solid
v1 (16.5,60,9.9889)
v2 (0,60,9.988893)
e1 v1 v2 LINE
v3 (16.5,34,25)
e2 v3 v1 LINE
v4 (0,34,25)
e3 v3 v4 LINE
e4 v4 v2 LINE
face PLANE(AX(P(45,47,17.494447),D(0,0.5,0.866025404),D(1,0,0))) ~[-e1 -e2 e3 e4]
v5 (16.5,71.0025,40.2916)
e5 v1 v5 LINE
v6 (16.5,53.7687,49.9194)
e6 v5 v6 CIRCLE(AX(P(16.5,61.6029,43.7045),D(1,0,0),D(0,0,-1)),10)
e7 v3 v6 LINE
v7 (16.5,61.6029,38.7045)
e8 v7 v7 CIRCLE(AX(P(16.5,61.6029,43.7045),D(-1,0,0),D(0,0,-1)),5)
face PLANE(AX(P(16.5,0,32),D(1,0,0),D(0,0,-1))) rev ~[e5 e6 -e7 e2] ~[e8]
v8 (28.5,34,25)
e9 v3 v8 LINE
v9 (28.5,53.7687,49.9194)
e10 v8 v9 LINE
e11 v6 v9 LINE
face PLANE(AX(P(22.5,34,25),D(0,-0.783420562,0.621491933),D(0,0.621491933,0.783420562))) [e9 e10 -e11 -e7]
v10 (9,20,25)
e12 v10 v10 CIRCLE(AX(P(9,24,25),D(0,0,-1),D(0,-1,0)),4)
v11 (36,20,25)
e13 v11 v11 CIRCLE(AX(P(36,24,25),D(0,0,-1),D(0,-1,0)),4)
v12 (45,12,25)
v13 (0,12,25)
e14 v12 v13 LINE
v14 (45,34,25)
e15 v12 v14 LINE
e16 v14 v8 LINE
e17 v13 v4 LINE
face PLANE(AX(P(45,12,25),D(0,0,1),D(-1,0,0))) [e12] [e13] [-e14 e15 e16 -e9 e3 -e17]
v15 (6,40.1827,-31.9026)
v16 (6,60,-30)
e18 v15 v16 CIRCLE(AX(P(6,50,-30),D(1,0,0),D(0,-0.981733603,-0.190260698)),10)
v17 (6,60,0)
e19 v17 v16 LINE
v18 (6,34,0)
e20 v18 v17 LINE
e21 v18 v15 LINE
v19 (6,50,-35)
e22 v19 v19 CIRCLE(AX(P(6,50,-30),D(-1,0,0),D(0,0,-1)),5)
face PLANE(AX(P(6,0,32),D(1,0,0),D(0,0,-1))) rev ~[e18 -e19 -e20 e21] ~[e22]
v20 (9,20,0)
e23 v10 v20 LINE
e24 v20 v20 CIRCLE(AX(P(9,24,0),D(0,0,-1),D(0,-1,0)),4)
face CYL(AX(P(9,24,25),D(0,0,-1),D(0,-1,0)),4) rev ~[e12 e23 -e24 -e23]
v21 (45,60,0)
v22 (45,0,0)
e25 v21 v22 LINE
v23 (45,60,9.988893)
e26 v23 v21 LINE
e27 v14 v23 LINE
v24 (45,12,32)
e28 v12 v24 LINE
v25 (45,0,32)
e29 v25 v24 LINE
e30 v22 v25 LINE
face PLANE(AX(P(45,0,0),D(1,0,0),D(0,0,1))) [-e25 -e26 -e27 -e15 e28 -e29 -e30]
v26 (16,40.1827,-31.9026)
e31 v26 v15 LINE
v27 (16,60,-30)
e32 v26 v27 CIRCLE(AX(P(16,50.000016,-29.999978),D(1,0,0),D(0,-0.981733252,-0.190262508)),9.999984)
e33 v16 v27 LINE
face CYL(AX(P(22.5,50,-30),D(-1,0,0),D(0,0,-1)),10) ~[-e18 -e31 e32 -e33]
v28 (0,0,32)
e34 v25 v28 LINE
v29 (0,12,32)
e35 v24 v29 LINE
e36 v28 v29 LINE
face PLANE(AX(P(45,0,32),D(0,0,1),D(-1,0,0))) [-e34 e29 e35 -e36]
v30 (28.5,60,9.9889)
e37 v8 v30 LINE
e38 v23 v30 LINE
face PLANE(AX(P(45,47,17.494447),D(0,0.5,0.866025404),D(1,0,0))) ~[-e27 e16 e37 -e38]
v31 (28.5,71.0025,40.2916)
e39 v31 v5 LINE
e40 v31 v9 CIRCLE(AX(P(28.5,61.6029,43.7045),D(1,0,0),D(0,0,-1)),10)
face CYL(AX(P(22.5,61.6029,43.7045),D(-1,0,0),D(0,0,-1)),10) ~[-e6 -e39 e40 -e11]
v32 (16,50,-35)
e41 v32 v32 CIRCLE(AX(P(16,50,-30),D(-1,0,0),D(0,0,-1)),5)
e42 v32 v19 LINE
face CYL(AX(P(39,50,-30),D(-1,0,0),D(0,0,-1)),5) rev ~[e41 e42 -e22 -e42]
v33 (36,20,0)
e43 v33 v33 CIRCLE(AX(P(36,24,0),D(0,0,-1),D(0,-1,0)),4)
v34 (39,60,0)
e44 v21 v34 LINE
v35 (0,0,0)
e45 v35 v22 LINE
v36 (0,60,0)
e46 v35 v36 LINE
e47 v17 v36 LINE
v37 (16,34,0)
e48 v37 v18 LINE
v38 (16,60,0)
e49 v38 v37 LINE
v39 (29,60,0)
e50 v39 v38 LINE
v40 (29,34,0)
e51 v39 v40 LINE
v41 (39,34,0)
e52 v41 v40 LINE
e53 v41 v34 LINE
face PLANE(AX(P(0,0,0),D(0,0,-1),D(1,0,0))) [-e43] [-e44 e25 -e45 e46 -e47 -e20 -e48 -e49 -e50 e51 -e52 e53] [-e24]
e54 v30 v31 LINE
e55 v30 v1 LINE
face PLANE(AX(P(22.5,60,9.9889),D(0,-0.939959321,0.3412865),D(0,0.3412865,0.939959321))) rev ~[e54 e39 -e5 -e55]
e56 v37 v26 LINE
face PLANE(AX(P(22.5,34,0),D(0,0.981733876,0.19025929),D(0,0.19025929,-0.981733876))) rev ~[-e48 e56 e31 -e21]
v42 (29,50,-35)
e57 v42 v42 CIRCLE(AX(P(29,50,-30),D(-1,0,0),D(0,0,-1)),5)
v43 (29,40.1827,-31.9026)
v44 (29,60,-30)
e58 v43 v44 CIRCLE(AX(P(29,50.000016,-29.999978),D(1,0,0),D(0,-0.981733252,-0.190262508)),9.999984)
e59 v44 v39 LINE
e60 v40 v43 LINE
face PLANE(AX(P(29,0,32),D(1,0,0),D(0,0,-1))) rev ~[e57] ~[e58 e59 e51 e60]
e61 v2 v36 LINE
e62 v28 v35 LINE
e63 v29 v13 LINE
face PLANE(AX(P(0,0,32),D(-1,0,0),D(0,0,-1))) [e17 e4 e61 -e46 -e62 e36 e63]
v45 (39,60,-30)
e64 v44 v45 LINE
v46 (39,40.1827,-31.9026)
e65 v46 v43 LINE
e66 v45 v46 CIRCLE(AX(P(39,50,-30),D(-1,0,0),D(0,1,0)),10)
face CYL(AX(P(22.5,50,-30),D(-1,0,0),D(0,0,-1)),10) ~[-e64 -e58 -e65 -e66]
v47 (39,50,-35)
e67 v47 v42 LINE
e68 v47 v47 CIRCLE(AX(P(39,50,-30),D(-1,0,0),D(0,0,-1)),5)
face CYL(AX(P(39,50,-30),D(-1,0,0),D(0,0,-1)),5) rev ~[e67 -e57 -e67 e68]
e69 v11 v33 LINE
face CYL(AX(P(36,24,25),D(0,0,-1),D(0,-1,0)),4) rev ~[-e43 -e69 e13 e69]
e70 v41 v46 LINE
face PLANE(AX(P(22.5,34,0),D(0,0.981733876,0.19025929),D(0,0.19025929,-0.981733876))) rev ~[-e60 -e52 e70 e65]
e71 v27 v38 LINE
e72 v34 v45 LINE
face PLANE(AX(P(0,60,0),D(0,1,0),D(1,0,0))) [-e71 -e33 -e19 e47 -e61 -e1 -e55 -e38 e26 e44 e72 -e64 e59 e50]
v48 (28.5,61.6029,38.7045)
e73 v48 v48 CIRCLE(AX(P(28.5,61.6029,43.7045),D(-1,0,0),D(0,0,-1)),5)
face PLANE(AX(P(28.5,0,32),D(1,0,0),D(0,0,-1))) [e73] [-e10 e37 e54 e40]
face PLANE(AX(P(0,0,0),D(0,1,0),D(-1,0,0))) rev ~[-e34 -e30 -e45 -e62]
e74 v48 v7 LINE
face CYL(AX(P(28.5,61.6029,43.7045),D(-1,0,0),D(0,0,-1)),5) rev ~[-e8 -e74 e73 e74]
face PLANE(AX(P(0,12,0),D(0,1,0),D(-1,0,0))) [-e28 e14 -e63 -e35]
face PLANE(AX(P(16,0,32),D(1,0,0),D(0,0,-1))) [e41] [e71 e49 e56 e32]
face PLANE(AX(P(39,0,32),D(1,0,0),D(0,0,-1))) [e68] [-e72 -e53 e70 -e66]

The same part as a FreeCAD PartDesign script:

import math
import FreeCAD as App
import Part
import Sketcher
from FreeCAD import Vector
Q = App.Units.Quantity


def edges_at(feature, points):
    """Names of the edges that pass closest to the given points."""
    edges = feature.Shape.Edges
    near = lambda p: min(range(len(edges)), key=lambda i: edges[i].distToShape(Part.Vertex(*p))[0])
    return sorted({f"Edge{near(p) + 1}" for p in points})

doc = App.newDocument("Part")
body = doc.addObject("PartDesign::Body", "Body")

# Sketch on XZ plane
sketch1 = doc.addObject("Sketcher::SketchObject", "Sketch")
body.addObject(sketch1)
sketch1.AttachmentSupport = (doc.XZ_Plane, [""])
sketch1.MapMode = "FlatFace"
sketch1.addGeometry([
    Part.LineSegment(Vector(45, 0, 0), Vector(0, 0, 0)),
    Part.LineSegment(Vector(0, 0, 0), Vector(0, 32, 0)),
    Part.LineSegment(Vector(0, 32, 0), Vector(45, 32, 0)),
    Part.LineSegment(Vector(45, 32, 0), Vector(45, 0, 0)),
], False)
sketch1.addConstraint([
    Sketcher.Constraint("Coincident", 0, 2, 1, 1),
    Sketcher.Constraint("Coincident", 1, 2, 2, 1),
    Sketcher.Constraint("Coincident", 2, 2, 3, 1),
    Sketcher.Constraint("Coincident", 3, 2, 0, 1),
    Sketcher.Constraint("Horizontal", 0),
    Sketcher.Constraint("Vertical", 1),
    Sketcher.Constraint("Horizontal", 2),
    Sketcher.Constraint("Vertical", 3),
    Sketcher.Constraint("Coincident", 0, 2, -1, 1),
    Sketcher.Constraint("DistanceX", 0, 2, 0, 1, Q("45 mm")),
    Sketcher.Constraint("DistanceY", 1, 1, 1, 2, Q("32 mm")),
])
pad1 = doc.addObject("PartDesign::Pad", "Pad")
body.addObject(pad1)
pad1.Profile = sketch1
pad1.Length = 12
pad1.Reversed = True

# Sketch on XZ plane
sketch2 = doc.addObject("Sketcher::SketchObject", "Sketch001")
body.addObject(sketch2)
sketch2.AttachmentSupport = (doc.XZ_Plane, [""])
sketch2.MapMode = "FlatFace"
sketch2.AttachmentOffset = App.Placement(Vector(0, 0, -12), App.Rotation())
sketch2.addGeometry([
    Part.LineSegment(Vector(45, 25, 0), Vector(45, 0, 0)),
    Part.LineSegment(Vector(45, 0, 0), Vector(0, 0, 0)),
    Part.LineSegment(Vector(0, 0, 0), Vector(0, 25, 0)),
    Part.LineSegment(Vector(0, 25, 0), Vector(45, 25, 0)),
], False)
sketch2.addConstraint([
    Sketcher.Constraint("Coincident", 0, 2, 1, 1),
    Sketcher.Constraint("Coincident", 1, 2, 2, 1),
    Sketcher.Constraint("Coincident", 2, 2, 3, 1),
    Sketcher.Constraint("Coincident", 3, 2, 0, 1),
    Sketcher.Constraint("Vertical", 0),
    Sketcher.Constraint("Horizontal", 1),
    Sketcher.Constraint("Vertical", 2),
    Sketcher.Constraint("Horizontal", 3),
    Sketcher.Constraint("Coincident", 1, 2, -1, 1),
    Sketcher.Constraint("DistanceX", 1, 2, 1, 1, Q("45 mm")),
    Sketcher.Constraint("DistanceY", 0, 2, 0, 1, Q("25 mm")),
])
pad2 = doc.addObject("PartDesign::Pad", "Pad001")
body.addObject(pad2)
pad2.Profile = sketch2
pad2.Length = 48
pad2.Reversed = True

# Sketch on XY plane
sketch3 = doc.addObject("Sketcher::SketchObject", "Sketch002")
body.addObject(sketch3)
sketch3.AttachmentSupport = (doc.XY_Plane, [""])
sketch3.MapMode = "FlatFace"
sketch3.AttachmentOffset = App.Placement(Vector(0, 0, 25), App.Rotation())
sketch3.addGeometry([
    Part.Circle(Vector(9, 24, 0), Vector(0, 0, 1), 4),
    Part.Circle(Vector(36, 24, 0), Vector(0, 0, 1), 4),
], False)
sketch3.addConstraint([
    Sketcher.Constraint("Equal", 0, 1),
    Sketcher.Constraint("Horizontal", 0, 3, 1, 3),
    Sketcher.Constraint("Diameter", 0, Q("8 mm")),
    Sketcher.Constraint("DistanceX", -1, 1, 0, 3, Q("9 mm")),
    Sketcher.Constraint("DistanceY", -1, 1, 0, 3, Q("24 mm")),
    Sketcher.Constraint("DistanceX", -1, 1, 1, 3, Q("36 mm")),
])
doc.recompute()
hole = doc.addObject("PartDesign::Hole", "Hole")
body.addObject(hole)
hole.Profile = sketch3
hole.ThreadType = "None"
hole.Diameter = 8
hole.DepthType = "ThroughAll"
doc.recompute()

chamfer = doc.addObject("PartDesign::Chamfer", "Chamfer")
body.addObject(chamfer)
chamfer.Base = (hole, edges_at(hole, [(22.5, 60, 25)]))
chamfer.ChamferType = "Distance and Angle"
chamfer.Size = 26
chamfer.Angle = 30
chamfer.FlipDirection = True

# Sketch on YZ plane
sketch4 = doc.addObject("Sketcher::SketchObject", "Sketch003")
body.addObject(sketch4)
sketch4.AttachmentSupport = (doc.YZ_Plane, [""])
sketch4.MapMode = "FlatFace"
sketch4.AttachmentOffset = App.Placement(Vector(0, 0, 22.5), App.Rotation())
sketch4.addGeometry([
    Part.ArcOfCircle(Part.Circle(Vector(62, 44, 0), Vector(0, 0, 1), 10), math.radians(-20), math.radians(142)),
    Part.LineSegment(Vector(54, 50, 0), Vector(34, 25, 0)),
    Part.LineSegment(Vector(34, 25, 0), Vector(60, 10, 0)),
    Part.LineSegment(Vector(60, 10, 0), Vector(71, 40, 0)),
], False)
sketch4.addConstraint([
    Sketcher.Constraint("Tangent", 0, 2, 1, 1),
    Sketcher.Constraint("Coincident", 1, 2, 2, 1),
    Sketcher.Constraint("Coincident", 2, 2, 3, 1),
    Sketcher.Constraint("Tangent", 3, 2, 0, 1),
    Sketcher.Constraint("Radius", 0, Q("10 mm")),
    Sketcher.Constraint("Angle", 2, Q("-30 deg")),
    Sketcher.Constraint("DistanceX", -1, 1, 1, 2, Q("34 mm")),
    Sketcher.Constraint("DistanceY", -1, 1, 1, 2, Q("25 mm")),
    Sketcher.Constraint("DistanceX", -1, 1, 2, 2, Q("60 mm")),
    Sketcher.Constraint("DistanceX", -1, 1, 0, 3, Q("61.603 mm")),
    Sketcher.Constraint("DistanceY", 0, 3, 0, 2, Q("6.215 mm")),
])
pad3 = doc.addObject("PartDesign::Pad", "Pad002")
body.addObject(pad3)
pad3.Profile = sketch4
pad3.Length = 12
pad3.Midplane = True

# Sketch on YZ plane
sketch5 = doc.addObject("Sketcher::SketchObject", "Sketch004")
body.addObject(sketch5)
sketch5.AttachmentSupport = (doc.YZ_Plane, [""])
sketch5.MapMode = "FlatFace"
sketch5.AttachmentOffset = App.Placement(Vector(0, 0, 28.5), App.Rotation())
sketch5.addGeometry(Part.Circle(Vector(62, 44, 0), Vector(0, 0, 1), 5), False)
sketch5.addConstraint([
    Sketcher.Constraint("Diameter", 0, Q("10 mm")),
    Sketcher.Constraint("DistanceX", -1, 1, 0, 3, Q("61.603 mm")),
    Sketcher.Constraint("DistanceY", -1, 1, 0, 3, Q("43.7045 mm")),
])
doc.recompute()
hole2 = doc.addObject("PartDesign::Hole", "Hole001")
body.addObject(hole2)
hole2.Profile = sketch5
hole2.ThreadType = "None"
hole2.Diameter = 10
hole2.DepthType = "ThroughAll"

# Sketch on YZ plane
sketch6 = doc.addObject("Sketcher::SketchObject", "Sketch005")
body.addObject(sketch6)
sketch6.AttachmentSupport = (doc.YZ_Plane, [""])
sketch6.MapMode = "FlatFace"
sketch6.AttachmentOffset = App.Placement(Vector(0, 0, 22.5), App.Rotation())
sketch6.addGeometry([
    Part.ArcOfCircle(Part.Circle(Vector(50, -30, 0), Vector(0, 0, 1), 10), math.radians(-169), math.radians(0)),
    Part.LineSegment(Vector(60, -30, 0), Vector(60, 0, 0)),
    Part.LineSegment(Vector(60, 0, 0), Vector(34, 0, 0)),
    Part.LineSegment(Vector(34, 0, 0), Vector(40, -32, 0)),
], False)
sketch6.addConstraint([
    Sketcher.Constraint("Tangent", 0, 2, 1, 1),
    Sketcher.Constraint("Coincident", 1, 2, 2, 1),
    Sketcher.Constraint("Coincident", 2, 2, 3, 1),
    Sketcher.Constraint("Tangent", 3, 2, 0, 1),
    Sketcher.Constraint("Vertical", 1),
    Sketcher.Constraint("Horizontal", 2),
    Sketcher.Constraint("PointOnObject", 1, 2, -1),
    Sketcher.Constraint("Radius", 0, Q("10 mm")),
    Sketcher.Constraint("DistanceX", 2, 2, 2, 1, Q("26 mm")),
    Sketcher.Constraint("DistanceY", 1, 1, 1, 2, Q("30 mm")),
    Sketcher.Constraint("DistanceX", -1, 1, 0, 3, Q("50 mm")),
])
pad4 = doc.addObject("PartDesign::Pad", "Pad003")
body.addObject(pad4)
pad4.Profile = sketch6
pad4.Length = 33
pad4.Midplane = True

# Sketch on YZ plane
sketch7 = doc.addObject("Sketcher::SketchObject", "Sketch006")
body.addObject(sketch7)
sketch7.AttachmentSupport = (doc.YZ_Plane, [""])
sketch7.MapMode = "FlatFace"
sketch7.AttachmentOffset = App.Placement(Vector(0, 0, 22.5), App.Rotation())
sketch7.addGeometry([
    Part.LineSegment(Vector(34, 0, 0), Vector(40, -32, 0)),
    Part.ArcOfCircle(Part.Circle(Vector(50, -30, 0), Vector(0, 0, 1), 10), math.radians(-169), math.radians(0)),
    Part.LineSegment(Vector(60, -30, 0), Vector(60, 0, 0)),
    Part.LineSegment(Vector(60, 0, 0), Vector(34, 0, 0)),
], False)
sketch7.addConstraint([
    Sketcher.Constraint("Tangent", 0, 2, 1, 1),
    Sketcher.Constraint("Tangent", 1, 2, 2, 1),
    Sketcher.Constraint("Coincident", 2, 2, 3, 1),
    Sketcher.Constraint("Coincident", 3, 2, 0, 1),
    Sketcher.Constraint("Vertical", 2),
    Sketcher.Constraint("Horizontal", 3),
    Sketcher.Constraint("PointOnObject", 2, 2, -1),
    Sketcher.Constraint("Radius", 1, Q("10 mm")),
    Sketcher.Constraint("DistanceX", 3, 2, 3, 1, Q("26 mm")),
    Sketcher.Constraint("DistanceY", 2, 1, 2, 2, Q("30 mm")),
    Sketcher.Constraint("DistanceX", -1, 1, 1, 3, Q("50 mm")),
])
pocket1 = doc.addObject("PartDesign::Pocket", "Pocket")
body.addObject(pocket1)
pocket1.Profile = sketch7
pocket1.Length = 13
pocket1.Midplane = True

# Sketch on YZ plane
sketch8 = doc.addObject("Sketcher::SketchObject", "Sketch007")
body.addObject(sketch8)
sketch8.AttachmentSupport = (doc.YZ_Plane, [""])
sketch8.MapMode = "FlatFace"
sketch8.AttachmentOffset = App.Placement(Vector(0, 0, 39), App.Rotation())
sketch8.addGeometry(Part.Circle(Vector(50, -30, 0), Vector(0, 0, 1), 5), False)
sketch8.addConstraint([
    Sketcher.Constraint("Diameter", 0, Q("10 mm")),
    Sketcher.Constraint("DistanceX", -1, 1, 0, 3, Q("50 mm")),
    Sketcher.Constraint("DistanceY", 0, 3, -1, 1, Q("30 mm")),
])
doc.recompute()
hole3 = doc.addObject("PartDesign::Hole", "Hole002")
body.addObject(hole3)
hole3.Profile = sketch8
hole3.ThreadType = "None"
hole3.Diameter = 10
hole3.DepthType = "ThroughAll"

doc.recompute()
